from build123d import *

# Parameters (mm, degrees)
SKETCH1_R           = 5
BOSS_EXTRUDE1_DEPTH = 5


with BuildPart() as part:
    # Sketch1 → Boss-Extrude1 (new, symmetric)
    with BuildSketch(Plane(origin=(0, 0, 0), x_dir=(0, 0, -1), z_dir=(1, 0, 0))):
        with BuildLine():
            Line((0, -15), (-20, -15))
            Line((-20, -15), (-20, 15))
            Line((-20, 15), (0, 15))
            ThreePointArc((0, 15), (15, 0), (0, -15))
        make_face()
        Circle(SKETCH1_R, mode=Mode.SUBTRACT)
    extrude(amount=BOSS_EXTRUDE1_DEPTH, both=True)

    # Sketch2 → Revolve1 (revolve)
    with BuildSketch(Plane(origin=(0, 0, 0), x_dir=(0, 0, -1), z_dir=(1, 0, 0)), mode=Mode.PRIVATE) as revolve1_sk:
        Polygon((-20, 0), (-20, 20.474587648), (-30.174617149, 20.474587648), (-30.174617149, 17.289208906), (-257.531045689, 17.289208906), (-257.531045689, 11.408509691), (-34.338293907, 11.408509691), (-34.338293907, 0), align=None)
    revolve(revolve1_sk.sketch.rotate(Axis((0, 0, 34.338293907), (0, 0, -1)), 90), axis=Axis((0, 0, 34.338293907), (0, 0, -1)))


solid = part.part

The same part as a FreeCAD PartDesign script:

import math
import FreeCAD as App
import Part
import Sketcher

V = App.Vector

doc = App.newDocument("Part")
body = doc.addObject("PartDesign::Body", "Body")

sketch1 = doc.addObject("Sketcher::SketchObject", "Sketch")
body.addObject(sketch1)
sketch1.AttachmentSupport = (doc.YZ_Plane, [""])
sketch1.MapMode = "FlatFace"
sketch1.addGeometry(Part.LineSegment(V(-15, 20, 0), V(-15, 0, 0)), False)
sketch1.addGeometry(Part.ArcOfCircle(Part.Circle(V(0, 0, 0), V(0, 0, 1), 15), math.radians(180), math.radians(360)), False)
sketch1.addGeometry(Part.LineSegment(V(15, 0, 0), V(15, 20, 0)), False)
sketch1.addGeometry(Part.LineSegment(V(15, 20, 0), V(-15, 20, 0)), False)
sketch1.addGeometry(Part.Circle(V(0, 0, 0), V(0, 0, 1), 5), False)
sketch1.addConstraint(Sketcher.Constraint("Tangent", 0, 2, 1, 1))
sketch1.addConstraint(Sketcher.Constraint("Tangent", 1, 2, 2, 1))
sketch1.addConstraint(Sketcher.Constraint("Coincident", 2, 2, 3, 1))
sketch1.addConstraint(Sketcher.Constraint("Coincident", 3, 2, 0, 1))
sketch1.addConstraint(Sketcher.Constraint("Vertical", 0))
sketch1.addConstraint(Sketcher.Constraint("Vertical", 2))
sketch1.addConstraint(Sketcher.Constraint("Horizontal", 3))
sketch1.addConstraint(Sketcher.Constraint("Coincident", 1, 3, -1, 1))
sketch1.addConstraint(Sketcher.Constraint("Coincident", 4, 3, -1, 1))
sketch1.addConstraint(Sketcher.Constraint("Diameter", 4, 10.0))
sketch1.addConstraint(Sketcher.Constraint("Radius", 1, 15.0))
sketch1.addConstraint(Sketcher.Constraint("DistanceY", 0, 2, 0, 1, 20.0))
pad1 = doc.addObject("PartDesign::Pad", "Pad")
body.addObject(pad1)
pad1.Profile = sketch1
pad1.Length = 10
pad1.Midplane = True

sketch2 = doc.addObject("Sketcher::SketchObject", "Sketch001")
body.addObject(sketch2)
sketch2.AttachmentSupport = (doc.YZ_Plane, [""])
sketch2.MapMode = "FlatFace"
sketch2.addGeometry(Part.LineSegment(V(0, 20, 0), V(20.5, 20, 0)), False)
sketch2.addGeometry(Part.LineSegment(V(20.5, 20, 0), V(20.5, 30.2, 0)), False)
sketch2.addGeometry(Part.LineSegment(V(20.5, 30.2, 0), V(17.3, 30.2, 0)), False)
sketch2.addGeometry(Part.LineSegment(V(17.3, 30.2, 0), V(17.3, 257.5, 0)), False)
sketch2.addGeometry(Part.LineSegment(V(17.3, 257.5, 0), V(11.4, 257.5, 0)), False)
sketch2.addGeometry(Part.LineSegment(V(11.4, 257.5, 0), V(11.4, 34.3, 0)), False)
sketch2.addGeometry(Part.LineSegment(V(11.4, 34.3, 0), V(0, 34.3, 0)), False)
sketch2.addGeometry(Part.LineSegment(V(0, 34.3, 0), V(0, 20, 0)), False)
sketch2.addConstraint(Sketcher.Constraint("Coincident", 0, 2, 1, 1))
sketch2.addConstraint(Sketcher.Constraint("Coincident", 1, 2, 2, 1))
sketch2.addConstraint(Sketcher.Constraint("Coincident", 2, 2, 3, 1))
sketch2.addConstraint(Sketcher.Constraint("Coincident", 3, 2, 4, 1))
sketch2.addConstraint(Sketcher.Constraint("Coincident", 4, 2, 5, 1))
sketch2.addConstraint(Sketcher.Constraint("Coincident", 5, 2, 6, 1))
sketch2.addConstraint(Sketcher.Constraint("Coincident", 6, 2, 7, 1))
sketch2.addConstraint(Sketcher.Constraint("Coincident", 7, 2, 0, 1))
sketch2.addConstraint(Sketcher.Constraint("Horizontal", 0))
sketch2.addConstraint(Sketcher.Constraint("Vertical", 1))
sketch2.addConstraint(Sketcher.Constraint("Horizontal", 2))
sketch2.addConstraint(Sketcher.Constraint("Vertical", 3))
sketch2.addConstraint(Sketcher.Constraint("Horizontal", 4))
sketch2.addConstraint(Sketcher.Constraint("Vertical", 5))
sketch2.addConstraint(Sketcher.Constraint("Horizontal", 6))
sketch2.addConstraint(Sketcher.Constraint("Vertical", 7))
sketch2.addConstraint(Sketcher.Constraint("PointOnObject", 6, 2, -2))
sketch2.addConstraint(Sketcher.Constraint("DistanceY", -1, 1, 0, 2, 20.0))
sketch2.addConstraint(Sketcher.Constraint("DistanceX", 4, 2, 4, 1, 5.880699))
sketch2.addConstraint(Sketcher.Constraint("DistanceX", 2, 2, 2, 1, 3.185379))
sketch2.addConstraint(Sketcher.Constraint("DistanceX", 6, 2, 6, 1, 11.40851))
sketch2.addConstraint(Sketcher.Constraint("DistanceY", 3, 1, 3, 2, 227.356429))
sketch2.addConstraint(Sketcher.Constraint("DistanceY", 5, 2, 5, 1, 223.192752))
sketch2.addConstraint(Sketcher.Constraint("DistanceY", 1, 1, 1, 2, 10.174617))
revolution = doc.addObject("PartDesign::Revolution", "Revolution")
body.addObject(revolution)
revolution.Profile = sketch2
revolution.ReferenceAxis = (sketch2, ["V_Axis"])
revolution.Angle = 360

doc.recompute()
